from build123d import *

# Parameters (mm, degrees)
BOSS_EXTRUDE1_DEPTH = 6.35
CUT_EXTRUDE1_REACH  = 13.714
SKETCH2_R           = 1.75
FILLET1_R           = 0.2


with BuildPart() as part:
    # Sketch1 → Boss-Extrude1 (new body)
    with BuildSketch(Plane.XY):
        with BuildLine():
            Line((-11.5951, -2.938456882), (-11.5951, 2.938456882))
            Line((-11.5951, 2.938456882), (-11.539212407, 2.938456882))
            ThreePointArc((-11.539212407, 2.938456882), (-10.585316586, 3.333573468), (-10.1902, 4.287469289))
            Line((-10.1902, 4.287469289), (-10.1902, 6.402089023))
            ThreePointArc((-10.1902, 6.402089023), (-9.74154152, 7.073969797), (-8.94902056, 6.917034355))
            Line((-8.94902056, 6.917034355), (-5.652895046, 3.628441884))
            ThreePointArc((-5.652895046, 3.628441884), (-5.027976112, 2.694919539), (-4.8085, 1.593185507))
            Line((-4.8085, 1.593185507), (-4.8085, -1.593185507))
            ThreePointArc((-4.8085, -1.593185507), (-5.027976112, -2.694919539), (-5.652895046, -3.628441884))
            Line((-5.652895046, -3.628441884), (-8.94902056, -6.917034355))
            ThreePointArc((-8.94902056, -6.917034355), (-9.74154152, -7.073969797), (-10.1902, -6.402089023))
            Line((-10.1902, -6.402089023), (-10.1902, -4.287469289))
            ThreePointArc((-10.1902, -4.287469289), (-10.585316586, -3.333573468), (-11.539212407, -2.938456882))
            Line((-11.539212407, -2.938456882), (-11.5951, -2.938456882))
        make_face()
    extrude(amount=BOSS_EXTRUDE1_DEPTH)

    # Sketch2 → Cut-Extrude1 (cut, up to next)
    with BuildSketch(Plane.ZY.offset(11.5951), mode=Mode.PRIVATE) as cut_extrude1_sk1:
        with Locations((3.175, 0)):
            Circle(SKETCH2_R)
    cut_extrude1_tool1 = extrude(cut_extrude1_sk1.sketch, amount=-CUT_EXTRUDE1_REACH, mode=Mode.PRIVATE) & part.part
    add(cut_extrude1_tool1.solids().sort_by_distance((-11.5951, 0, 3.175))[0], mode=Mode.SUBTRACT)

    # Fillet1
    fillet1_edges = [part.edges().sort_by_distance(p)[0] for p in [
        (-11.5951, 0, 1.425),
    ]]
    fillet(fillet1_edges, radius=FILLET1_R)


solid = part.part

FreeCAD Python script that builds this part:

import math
import FreeCAD as App
import Part
import Sketcher

V = App.Vector


def edges_at(feature, points):
    """Names of the edges that pass closest to the given points."""
    edges = feature.Shape.Edges
    near = lambda p: min(range(len(edges)), key=lambda i: edges[i].distToShape(Part.Vertex(*p))[0])
    return sorted({f"Edge{near(p) + 1}" for p in points})

doc = App.newDocument("Part")
body = doc.addObject("PartDesign::Body", "Body")

sketch1 = body.newObject("Sketcher::SketchObject", "Sketch")
sketch1.AttachmentSupport = (doc.getObject("XY_Plane"), [""])
sketch1.MapMode = "FlatFace"
sketch1.addGeometry(Part.LineSegment(V(-11.6, 2.94, 0), V(-11.6, -2.94, 0)), False)
sketch1.addGeometry(Part.LineSegment(V(-11.6, -2.94, 0), V(-11.54, -2.94, 0)), False)
sketch1.addGeometry(Part.ArcOfCircle(Part.Circle(V(-11.54, -4.29, 0), V(0, 0, 1), 1.35), math.radians(0), math.radians(90)), False)
sketch1.addGeometry(Part.LineSegment(V(-10.19, -4.29, 0), V(-10.19, -6.4, 0)), False)
sketch1.addGeometry(Part.ArcOfCircle(Part.Circle(V(-9.46, -6.4, 0), V(0, 0, 1), 0.73), math.radians(180), math.radians(315)), False)
sketch1.addGeometry(Part.LineSegment(V(-8.95, -6.92, 0), V(-5.65, -3.63, 0)), False)
sketch1.addGeometry(Part.ArcOfCircle(Part.Circle(V(-7.68, -1.59, 0), V(0, 0, 1), 2.88), math.radians(-45), math.radians(0)), False)
sketch1.addGeometry(Part.LineSegment(V(-4.81, -1.59, 0), V(-4.81, 1.59, 0)), False)
sketch1.addGeometry(Part.ArcOfCircle(Part.Circle(V(-7.68, 1.59, 0), V(0, 0, 1), 2.88), math.radians(0), math.radians(45)), False)
sketch1.addGeometry(Part.LineSegment(V(-5.65, 3.63, 0), V(-8.95, 6.92, 0)), False)
sketch1.addGeometry(Part.ArcOfCircle(Part.Circle(V(-9.46, 6.4, 0), V(0, 0, 1), 0.73), math.radians(45), math.radians(180)), False)
sketch1.addGeometry(Part.LineSegment(V(-10.19, 6.4, 0), V(-10.19, 4.29, 0)), False)
sketch1.addGeometry(Part.ArcOfCircle(Part.Circle(V(-11.54, 4.29, 0), V(0, 0, 1), 1.35), math.radians(-90), math.radians(0)), False)
sketch1.addGeometry(Part.LineSegment(V(-11.54, 2.94, 0), V(-11.6, 2.94, 0)), False)
sketch1.addConstraint(Sketcher.Constraint("Coincident", 0, 2, 1, 1))
sketch1.addConstraint(Sketcher.Constraint("Tangent", 1, 2, 2, 2))
sketch1.addConstraint(Sketcher.Constraint("Tangent", 2, 1, 3, 1))
sketch1.addConstraint(Sketcher.Constraint("Tangent", 3, 2, 4, 1))
sketch1.addConstraint(Sketcher.Constraint("Tangent", 4, 2, 5, 1))
sketch1.addConstraint(Sketcher.Constraint("Tangent", 5, 2, 6, 1))
sketch1.addConstraint(Sketcher.Constraint("Tangent", 6, 2, 7, 1))
sketch1.addConstraint(Sketcher.Constraint("Tangent", 7, 2, 8, 1))
sketch1.addConstraint(Sketcher.Constraint("Tangent", 8, 2, 9, 1))
sketch1.addConstraint(Sketcher.Constraint("Tangent", 9, 2, 10, 1))
sketch1.addConstraint(Sketcher.Constraint("Tangent", 10, 2, 11, 1))
sketch1.addConstraint(Sketcher.Constraint("Tangent", 11, 2, 12, 2))
sketch1.addConstraint(Sketcher.Constraint("Tangent", 12, 1, 13, 1))
sketch1.addConstraint(Sketcher.Constraint("Coincident", 13, 2, 0, 1))
sketch1.addConstraint(Sketcher.Constraint("Vertical", 0))
sketch1.addConstraint(Sketcher.Constraint("Horizontal", 1))
sketch1.addConstraint(Sketcher.Constraint("Vertical", 3))
sketch1.addConstraint(Sketcher.Constraint("Vertical", 7))
sketch1.addConstraint(Sketcher.Constraint("Vertical", 11))
sketch1.addConstraint(Sketcher.Constraint("Horizontal", 13))
sketch1.addConstraint(Sketcher.Constraint("Equal", 6, 8))
sketch1.addConstraint(Sketcher.Constraint("Equal", 4, 10))
sketch1.addConstraint(Sketcher.Constraint("Equal", 2, 12))
sketch1.addConstraint(Sketcher.Constraint("Symmetric", 4, 3, 10, 3, -1))
sketch1.addConstraint(Sketcher.Constraint("Vertical", 5, 2, 8, 2))
sketch1.addConstraint(Sketcher.Constraint("Equal", 3, 11))
sketch1.addConstraint(Sketcher.Constraint("Radius", 6, 2.875))
sketch1.addConstraint(Sketcher.Constraint("Radius", 4, 0.727411))
sketch1.addConstraint(Sketcher.Constraint("Radius", 2, 1.349012))
sketch1.addConstraint(Sketcher.Constraint("Distance", 5, 4.656102))
sketch1.addConstraint(Sketcher.Constraint("DistanceY", 3, 2, 3, 1, 2.11462))
sketch1.addConstraint(Sketcher.Constraint("DistanceY", 7, 1, 7, 2, 3.186371))
sketch1.addConstraint(Sketcher.Constraint("DistanceX", 6, 3, -1, 1, 7.6835))
sketch1.addConstraint(Sketcher.Constraint("DistanceX", 0, 2, -1, 1, 11.5951))
sketch1.addConstraint(Sketcher.Constraint("DistanceX", 2, 1, -1, 1, 10.1902))
pad1 = body.newObject("PartDesign::Pad", "Pad")
pad1.Profile = sketch1
pad1.Length = 6.35

sketch2 = body.newObject("Sketcher::SketchObject", "Sketch001")
sketch2.AttachmentSupport = (doc.getObject("YZ_Plane"), [""])
sketch2.MapMode = "FlatFace"
sketch2.AttachmentOffset = App.Placement(V(0, 0, -11.5951), App.Rotation())
sketch2.addGeometry(Part.Circle(V(0, 3.2, 0), V(0, 0, 1), 1.8), False)
sketch2.addConstraint(Sketcher.Constraint("PointOnObject", 0, 3, -2))
sketch2.addConstraint(Sketcher.Constraint("Diameter", 0, 3.5))
sketch2.addConstraint(Sketcher.Constraint("DistanceY", -1, 1, 0, 3, 3.175))
pocket1 = body.newObject("PartDesign::Pocket", "Pocket")
pocket1.Profile = sketch2
pocket1.Type = "UpToFirst"
pocket1.Reversed = True
doc.recompute()

fillet = body.newObject("PartDesign::Fillet", "Fillet")
fillet.Base = (pocket1, edges_at(pocket1, [(-11.595, 0, 1.425)]))
fillet.Radius = 0.2

doc.recompute()
